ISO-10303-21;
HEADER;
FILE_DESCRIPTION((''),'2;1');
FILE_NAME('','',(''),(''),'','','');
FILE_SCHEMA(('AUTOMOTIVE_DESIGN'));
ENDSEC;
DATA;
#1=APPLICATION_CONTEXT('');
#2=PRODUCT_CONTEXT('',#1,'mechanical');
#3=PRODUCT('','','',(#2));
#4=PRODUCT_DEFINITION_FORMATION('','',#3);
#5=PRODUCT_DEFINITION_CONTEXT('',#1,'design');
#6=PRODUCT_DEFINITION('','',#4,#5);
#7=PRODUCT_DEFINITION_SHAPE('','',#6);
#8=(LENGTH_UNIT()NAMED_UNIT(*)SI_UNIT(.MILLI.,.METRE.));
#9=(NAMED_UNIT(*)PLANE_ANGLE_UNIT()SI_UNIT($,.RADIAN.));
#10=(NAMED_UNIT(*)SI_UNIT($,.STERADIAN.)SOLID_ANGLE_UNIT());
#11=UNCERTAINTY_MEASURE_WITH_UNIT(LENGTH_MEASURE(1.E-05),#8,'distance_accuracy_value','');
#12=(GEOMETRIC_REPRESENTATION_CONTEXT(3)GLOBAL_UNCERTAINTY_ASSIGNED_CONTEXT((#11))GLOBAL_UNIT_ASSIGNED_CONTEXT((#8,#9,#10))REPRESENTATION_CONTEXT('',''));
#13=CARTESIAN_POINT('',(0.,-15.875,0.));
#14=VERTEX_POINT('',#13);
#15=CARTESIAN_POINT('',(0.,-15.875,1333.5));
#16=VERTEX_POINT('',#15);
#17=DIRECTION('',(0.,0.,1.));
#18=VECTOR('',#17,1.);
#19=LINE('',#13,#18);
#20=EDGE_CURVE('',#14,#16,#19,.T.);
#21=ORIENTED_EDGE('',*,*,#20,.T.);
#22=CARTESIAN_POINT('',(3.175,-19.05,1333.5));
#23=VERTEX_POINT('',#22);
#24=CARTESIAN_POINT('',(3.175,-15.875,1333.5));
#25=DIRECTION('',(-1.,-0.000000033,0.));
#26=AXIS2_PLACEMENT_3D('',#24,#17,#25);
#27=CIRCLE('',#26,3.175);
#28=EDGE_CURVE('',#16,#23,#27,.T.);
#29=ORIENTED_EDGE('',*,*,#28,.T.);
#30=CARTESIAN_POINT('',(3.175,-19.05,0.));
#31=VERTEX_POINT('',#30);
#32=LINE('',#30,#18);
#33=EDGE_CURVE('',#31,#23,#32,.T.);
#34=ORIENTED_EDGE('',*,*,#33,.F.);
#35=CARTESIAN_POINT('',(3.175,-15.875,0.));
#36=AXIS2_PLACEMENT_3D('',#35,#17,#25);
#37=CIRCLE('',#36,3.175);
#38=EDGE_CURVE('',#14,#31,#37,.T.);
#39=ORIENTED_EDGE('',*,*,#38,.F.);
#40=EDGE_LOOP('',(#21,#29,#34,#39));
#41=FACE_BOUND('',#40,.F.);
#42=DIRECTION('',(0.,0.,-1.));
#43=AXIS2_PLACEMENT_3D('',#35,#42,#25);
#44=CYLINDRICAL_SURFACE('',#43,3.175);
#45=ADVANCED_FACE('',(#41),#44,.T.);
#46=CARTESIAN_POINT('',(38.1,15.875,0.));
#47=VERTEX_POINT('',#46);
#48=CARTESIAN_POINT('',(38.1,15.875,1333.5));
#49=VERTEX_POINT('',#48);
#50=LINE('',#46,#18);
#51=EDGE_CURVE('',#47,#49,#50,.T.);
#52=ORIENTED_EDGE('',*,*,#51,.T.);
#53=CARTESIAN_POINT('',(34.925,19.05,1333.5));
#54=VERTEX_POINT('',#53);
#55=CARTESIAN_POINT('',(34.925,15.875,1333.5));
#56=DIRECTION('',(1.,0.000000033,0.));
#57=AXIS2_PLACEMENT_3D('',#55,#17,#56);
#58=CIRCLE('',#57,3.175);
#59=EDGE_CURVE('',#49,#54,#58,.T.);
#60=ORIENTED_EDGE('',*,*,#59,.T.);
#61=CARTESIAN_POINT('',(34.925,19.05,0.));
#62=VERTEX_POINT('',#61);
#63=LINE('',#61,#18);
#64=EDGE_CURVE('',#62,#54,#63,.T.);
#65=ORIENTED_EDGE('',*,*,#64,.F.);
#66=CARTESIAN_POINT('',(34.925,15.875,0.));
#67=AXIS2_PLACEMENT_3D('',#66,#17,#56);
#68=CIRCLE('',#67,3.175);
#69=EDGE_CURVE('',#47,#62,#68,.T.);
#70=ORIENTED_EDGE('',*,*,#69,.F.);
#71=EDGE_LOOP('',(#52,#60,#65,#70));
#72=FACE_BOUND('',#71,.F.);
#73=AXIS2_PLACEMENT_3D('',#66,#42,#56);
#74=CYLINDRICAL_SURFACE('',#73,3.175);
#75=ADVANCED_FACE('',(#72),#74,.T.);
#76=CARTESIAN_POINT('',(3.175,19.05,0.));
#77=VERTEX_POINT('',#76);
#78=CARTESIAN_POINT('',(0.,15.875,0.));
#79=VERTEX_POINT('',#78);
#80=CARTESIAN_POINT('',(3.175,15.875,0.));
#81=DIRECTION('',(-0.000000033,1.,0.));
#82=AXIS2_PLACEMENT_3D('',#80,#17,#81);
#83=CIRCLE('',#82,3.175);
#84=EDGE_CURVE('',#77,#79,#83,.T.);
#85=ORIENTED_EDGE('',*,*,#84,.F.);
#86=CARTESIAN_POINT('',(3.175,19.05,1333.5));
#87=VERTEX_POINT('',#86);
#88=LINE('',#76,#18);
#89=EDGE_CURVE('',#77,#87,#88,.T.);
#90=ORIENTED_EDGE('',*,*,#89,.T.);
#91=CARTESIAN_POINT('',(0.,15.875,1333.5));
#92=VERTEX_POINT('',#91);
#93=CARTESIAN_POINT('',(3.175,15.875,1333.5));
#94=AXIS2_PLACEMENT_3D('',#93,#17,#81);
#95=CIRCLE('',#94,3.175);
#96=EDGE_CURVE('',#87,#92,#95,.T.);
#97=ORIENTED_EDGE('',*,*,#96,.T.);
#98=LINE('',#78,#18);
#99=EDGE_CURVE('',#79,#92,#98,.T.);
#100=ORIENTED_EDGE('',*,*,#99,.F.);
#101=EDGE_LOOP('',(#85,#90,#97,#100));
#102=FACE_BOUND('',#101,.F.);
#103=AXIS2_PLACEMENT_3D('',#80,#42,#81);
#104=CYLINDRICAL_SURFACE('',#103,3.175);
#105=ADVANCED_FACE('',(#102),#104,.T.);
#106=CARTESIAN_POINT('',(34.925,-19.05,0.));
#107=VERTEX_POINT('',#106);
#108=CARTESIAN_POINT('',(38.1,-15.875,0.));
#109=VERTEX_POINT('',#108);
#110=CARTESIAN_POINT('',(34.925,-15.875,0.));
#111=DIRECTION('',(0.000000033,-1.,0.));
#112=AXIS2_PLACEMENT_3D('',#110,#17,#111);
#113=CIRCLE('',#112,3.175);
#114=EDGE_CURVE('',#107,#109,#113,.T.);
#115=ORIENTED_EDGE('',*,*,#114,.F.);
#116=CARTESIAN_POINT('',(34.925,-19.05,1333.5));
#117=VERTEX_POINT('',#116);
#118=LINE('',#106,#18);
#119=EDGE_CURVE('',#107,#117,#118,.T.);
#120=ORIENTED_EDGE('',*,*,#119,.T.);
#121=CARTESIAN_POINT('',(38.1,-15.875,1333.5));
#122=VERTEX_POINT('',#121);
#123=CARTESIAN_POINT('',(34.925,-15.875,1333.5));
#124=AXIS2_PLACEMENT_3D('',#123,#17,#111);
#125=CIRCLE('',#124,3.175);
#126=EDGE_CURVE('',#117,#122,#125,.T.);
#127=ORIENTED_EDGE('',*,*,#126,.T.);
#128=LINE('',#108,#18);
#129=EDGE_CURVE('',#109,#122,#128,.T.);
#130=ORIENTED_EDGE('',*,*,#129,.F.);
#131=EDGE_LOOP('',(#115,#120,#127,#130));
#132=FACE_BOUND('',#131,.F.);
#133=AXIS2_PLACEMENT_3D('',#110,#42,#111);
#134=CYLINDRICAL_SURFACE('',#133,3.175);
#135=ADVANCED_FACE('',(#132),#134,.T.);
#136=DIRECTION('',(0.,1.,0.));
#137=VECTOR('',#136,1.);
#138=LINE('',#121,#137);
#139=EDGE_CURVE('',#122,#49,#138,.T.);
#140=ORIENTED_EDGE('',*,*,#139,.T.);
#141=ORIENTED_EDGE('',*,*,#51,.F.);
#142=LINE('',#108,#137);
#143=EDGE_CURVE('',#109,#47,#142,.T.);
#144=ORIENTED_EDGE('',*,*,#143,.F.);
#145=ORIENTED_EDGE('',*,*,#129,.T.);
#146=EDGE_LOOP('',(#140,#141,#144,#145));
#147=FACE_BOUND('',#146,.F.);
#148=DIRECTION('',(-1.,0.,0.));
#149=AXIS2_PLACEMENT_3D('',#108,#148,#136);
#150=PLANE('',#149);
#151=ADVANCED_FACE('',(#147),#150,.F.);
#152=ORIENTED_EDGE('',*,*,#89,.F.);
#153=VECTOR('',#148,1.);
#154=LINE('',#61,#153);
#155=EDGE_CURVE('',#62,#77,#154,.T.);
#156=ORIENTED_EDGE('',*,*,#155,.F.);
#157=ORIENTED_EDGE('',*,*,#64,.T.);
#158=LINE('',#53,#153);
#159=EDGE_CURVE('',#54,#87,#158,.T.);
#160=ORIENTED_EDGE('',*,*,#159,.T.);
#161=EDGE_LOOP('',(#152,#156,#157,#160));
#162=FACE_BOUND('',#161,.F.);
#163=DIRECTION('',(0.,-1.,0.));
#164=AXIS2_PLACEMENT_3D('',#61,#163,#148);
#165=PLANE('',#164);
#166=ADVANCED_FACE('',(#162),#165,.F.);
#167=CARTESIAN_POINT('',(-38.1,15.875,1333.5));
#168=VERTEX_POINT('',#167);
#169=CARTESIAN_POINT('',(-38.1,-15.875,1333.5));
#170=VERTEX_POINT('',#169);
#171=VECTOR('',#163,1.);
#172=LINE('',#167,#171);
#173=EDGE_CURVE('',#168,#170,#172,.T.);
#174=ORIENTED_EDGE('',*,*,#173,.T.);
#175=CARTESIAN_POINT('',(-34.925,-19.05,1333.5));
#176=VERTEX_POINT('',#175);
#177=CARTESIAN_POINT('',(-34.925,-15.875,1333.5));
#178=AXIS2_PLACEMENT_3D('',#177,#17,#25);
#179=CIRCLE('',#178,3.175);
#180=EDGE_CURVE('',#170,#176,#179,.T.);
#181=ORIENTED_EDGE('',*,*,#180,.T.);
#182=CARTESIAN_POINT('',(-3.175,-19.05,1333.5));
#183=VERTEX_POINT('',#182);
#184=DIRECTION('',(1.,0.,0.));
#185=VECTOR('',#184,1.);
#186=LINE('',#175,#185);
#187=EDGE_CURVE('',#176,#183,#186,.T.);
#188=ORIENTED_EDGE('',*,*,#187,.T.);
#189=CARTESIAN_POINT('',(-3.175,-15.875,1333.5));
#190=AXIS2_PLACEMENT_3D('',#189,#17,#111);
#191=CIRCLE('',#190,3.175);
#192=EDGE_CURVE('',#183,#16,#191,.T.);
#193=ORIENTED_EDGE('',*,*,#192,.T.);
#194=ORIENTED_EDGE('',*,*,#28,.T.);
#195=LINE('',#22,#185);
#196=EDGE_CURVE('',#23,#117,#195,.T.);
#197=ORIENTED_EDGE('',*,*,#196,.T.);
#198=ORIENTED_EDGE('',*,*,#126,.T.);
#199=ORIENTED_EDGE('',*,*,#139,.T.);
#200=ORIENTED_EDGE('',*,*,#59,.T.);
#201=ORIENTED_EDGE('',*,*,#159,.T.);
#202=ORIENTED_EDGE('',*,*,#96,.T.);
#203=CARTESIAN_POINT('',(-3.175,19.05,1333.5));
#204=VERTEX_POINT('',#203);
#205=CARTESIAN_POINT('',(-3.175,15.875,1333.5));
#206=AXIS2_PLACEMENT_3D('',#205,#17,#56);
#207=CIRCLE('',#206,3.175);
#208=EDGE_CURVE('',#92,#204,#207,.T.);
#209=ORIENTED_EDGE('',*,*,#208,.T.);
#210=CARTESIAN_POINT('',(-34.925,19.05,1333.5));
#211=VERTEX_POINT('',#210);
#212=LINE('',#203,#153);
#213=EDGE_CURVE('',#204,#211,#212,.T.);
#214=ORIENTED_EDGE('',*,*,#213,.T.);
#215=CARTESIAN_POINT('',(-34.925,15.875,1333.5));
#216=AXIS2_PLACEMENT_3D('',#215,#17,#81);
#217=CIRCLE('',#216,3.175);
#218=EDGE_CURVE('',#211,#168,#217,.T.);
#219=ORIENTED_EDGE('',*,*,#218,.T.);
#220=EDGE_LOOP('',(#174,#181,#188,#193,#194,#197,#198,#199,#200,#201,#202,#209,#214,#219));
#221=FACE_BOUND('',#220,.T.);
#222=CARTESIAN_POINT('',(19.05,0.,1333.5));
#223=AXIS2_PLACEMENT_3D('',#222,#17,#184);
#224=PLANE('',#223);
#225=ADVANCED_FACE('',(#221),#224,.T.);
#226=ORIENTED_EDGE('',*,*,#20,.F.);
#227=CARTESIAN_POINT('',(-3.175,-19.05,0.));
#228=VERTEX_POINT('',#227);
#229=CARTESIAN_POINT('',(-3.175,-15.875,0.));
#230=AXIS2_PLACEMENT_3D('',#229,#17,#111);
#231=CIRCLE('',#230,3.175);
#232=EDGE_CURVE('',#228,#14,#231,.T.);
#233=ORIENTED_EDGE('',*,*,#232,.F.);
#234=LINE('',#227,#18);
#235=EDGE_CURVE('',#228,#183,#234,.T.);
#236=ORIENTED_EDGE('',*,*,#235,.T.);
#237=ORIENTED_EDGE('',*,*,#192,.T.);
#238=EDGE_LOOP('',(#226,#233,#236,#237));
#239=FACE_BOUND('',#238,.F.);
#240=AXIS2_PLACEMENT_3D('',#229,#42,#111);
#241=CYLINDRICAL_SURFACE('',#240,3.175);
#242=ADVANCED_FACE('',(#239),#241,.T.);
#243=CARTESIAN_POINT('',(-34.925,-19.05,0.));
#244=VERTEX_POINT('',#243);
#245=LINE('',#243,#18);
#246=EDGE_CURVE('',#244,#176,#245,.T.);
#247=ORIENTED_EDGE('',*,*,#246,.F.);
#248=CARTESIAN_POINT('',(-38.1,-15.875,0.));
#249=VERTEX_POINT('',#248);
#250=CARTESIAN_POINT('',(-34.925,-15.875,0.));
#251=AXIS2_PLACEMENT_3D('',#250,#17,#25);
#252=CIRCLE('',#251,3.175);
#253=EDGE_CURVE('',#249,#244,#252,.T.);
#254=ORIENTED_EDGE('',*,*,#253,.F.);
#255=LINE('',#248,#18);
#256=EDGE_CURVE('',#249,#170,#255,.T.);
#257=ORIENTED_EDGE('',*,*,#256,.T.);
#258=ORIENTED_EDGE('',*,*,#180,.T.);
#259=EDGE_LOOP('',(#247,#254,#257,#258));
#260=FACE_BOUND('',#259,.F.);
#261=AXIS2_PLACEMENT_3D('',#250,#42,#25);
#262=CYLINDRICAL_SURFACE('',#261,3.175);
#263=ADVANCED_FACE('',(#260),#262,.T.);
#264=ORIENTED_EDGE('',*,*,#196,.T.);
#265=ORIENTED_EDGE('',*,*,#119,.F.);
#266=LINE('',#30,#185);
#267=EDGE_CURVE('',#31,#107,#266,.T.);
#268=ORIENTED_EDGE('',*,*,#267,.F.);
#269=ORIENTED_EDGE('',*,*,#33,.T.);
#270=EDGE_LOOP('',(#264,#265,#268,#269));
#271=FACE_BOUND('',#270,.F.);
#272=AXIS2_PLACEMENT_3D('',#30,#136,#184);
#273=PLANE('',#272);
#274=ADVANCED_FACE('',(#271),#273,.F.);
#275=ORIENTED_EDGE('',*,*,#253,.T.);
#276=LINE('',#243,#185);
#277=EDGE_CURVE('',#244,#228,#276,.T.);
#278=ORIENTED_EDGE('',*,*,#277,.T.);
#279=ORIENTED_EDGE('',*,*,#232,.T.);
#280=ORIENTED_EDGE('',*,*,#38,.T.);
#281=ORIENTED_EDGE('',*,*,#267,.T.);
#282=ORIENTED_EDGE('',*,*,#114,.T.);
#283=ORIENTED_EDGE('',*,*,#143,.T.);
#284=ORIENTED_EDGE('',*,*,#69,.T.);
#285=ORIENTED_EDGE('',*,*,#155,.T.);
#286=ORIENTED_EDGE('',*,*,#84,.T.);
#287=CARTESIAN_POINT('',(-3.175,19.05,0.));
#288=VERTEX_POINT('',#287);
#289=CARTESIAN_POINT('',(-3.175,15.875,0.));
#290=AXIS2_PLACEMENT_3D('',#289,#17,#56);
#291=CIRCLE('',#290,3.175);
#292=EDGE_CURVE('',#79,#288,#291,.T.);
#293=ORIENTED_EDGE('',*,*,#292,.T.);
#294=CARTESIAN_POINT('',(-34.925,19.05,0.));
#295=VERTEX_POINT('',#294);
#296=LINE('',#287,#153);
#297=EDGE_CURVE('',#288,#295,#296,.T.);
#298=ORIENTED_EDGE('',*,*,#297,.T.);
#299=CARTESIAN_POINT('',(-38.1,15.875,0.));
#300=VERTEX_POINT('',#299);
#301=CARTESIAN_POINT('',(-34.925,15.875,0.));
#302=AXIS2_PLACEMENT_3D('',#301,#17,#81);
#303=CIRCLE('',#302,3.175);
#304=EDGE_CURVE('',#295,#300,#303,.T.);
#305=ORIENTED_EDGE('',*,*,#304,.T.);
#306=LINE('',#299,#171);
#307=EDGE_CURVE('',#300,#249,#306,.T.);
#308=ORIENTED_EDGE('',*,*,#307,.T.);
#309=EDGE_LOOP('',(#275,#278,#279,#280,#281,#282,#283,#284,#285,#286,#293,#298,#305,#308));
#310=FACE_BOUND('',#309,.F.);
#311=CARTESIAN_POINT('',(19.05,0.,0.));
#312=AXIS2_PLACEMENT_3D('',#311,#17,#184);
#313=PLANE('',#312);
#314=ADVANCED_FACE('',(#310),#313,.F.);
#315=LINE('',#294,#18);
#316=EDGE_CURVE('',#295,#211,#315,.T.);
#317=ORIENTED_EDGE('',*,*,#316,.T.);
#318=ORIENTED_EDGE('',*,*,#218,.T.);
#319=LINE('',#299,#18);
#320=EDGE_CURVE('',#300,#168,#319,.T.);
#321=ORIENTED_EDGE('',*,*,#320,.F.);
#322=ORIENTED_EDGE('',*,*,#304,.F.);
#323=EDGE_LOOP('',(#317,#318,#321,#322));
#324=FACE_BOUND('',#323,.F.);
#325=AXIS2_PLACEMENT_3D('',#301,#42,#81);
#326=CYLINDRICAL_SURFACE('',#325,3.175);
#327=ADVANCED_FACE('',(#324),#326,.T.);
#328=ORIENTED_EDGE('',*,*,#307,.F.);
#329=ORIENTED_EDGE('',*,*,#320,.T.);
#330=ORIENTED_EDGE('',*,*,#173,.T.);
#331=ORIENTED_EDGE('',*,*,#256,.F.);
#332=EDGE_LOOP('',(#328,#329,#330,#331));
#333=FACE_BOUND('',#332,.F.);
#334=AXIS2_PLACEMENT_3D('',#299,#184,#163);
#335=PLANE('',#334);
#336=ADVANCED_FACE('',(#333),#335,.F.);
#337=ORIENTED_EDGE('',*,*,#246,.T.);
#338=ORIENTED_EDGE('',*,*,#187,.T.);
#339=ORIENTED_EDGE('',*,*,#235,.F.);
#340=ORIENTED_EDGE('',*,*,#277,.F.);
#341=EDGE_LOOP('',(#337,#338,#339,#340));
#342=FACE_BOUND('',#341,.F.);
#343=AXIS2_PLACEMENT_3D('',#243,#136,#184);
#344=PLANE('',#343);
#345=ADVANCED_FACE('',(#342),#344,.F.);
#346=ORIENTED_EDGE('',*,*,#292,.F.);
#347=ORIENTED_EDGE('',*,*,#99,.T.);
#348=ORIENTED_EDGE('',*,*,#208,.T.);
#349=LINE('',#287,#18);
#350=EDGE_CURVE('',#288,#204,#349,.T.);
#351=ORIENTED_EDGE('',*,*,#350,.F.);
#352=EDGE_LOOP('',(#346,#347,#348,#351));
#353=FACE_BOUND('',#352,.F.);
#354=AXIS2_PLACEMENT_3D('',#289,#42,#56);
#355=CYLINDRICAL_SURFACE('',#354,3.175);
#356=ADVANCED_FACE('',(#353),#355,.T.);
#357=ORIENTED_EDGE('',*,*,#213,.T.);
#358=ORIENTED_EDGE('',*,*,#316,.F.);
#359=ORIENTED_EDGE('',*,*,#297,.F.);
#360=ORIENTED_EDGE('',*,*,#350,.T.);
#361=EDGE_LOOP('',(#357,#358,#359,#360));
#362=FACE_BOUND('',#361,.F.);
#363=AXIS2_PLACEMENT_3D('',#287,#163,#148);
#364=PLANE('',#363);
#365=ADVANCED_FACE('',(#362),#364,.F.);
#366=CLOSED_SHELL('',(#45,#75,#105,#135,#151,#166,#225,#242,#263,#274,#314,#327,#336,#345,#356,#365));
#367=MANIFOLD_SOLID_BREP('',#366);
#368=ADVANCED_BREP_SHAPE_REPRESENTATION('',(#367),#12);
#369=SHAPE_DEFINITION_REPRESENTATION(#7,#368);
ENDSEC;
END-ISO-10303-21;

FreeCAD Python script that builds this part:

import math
import FreeCAD as App
import Part
import Sketcher

V = App.Vector
Q = App.Units.Quantity

doc = App.newDocument("Part")
params = doc.addObject("Spreadsheet::Sheet", "Params")
for row, (alias, value) in enumerate([
    ("sketch1_radius", "0.125 in"),
    ("sketch1_width", "1.25 in"),
    ("pad1_length", "52.5 in"),
], start=1):
    params.set(f"A{row}", alias)
    params.set(f"B{row}", "=" + value)
    params.setAlias(f"B{row}", alias)

body = doc.addObject("PartDesign::Body", "Body")

# Sketch on XY plane
sketch1 = body.newObject("Sketcher::SketchObject", "Sketch")
sketch1.AttachmentSupport = (doc.getObject("XY_Plane"), [""])
sketch1.MapMode = "FlatFace"
sketch1.addGeometry(Part.ArcOfCircle(Part.Circle(V(34.9, 15.9, 0), V(0, 0, 1), 3.2), math.radians(0), math.radians(90)), False)
sketch1.addGeometry(Part.LineSegment(V(34.9, 19.1, 0), V(3.2, 19.1, 0)), False)
sketch1.addGeometry(Part.ArcOfCircle(Part.Circle(V(3.2, 15.9, 0), V(0, 0, 1), 3.2), math.radians(90), math.radians(180)), False)
sketch1.addGeometry(Part.ArcOfCircle(Part.Circle(V(-3.2, 15.9, 0), V(0, 0, 1), 3.2), math.radians(0), math.radians(90)), False)
sketch1.addGeometry(Part.LineSegment(V(-3.2, 19.1, 0), V(-34.9, 19.1, 0)), False)
sketch1.addGeometry(Part.ArcOfCircle(Part.Circle(V(-34.9, 15.9, 0), V(0, 0, 1), 3.2), math.radians(90), math.radians(180)), False)
sketch1.addGeometry(Part.LineSegment(V(-38.1, 15.9, 0), V(-38.1, -15.9, 0)), False)
sketch1.addGeometry(Part.ArcOfCircle(Part.Circle(V(-34.9, -15.9, 0), V(0, 0, 1), 3.2), math.radians(-180), math.radians(-90)), False)
sketch1.addGeometry(Part.LineSegment(V(-34.9, -19.1, 0), V(-3.2, -19.1, 0)), False)
sketch1.addGeometry(Part.ArcOfCircle(Part.Circle(V(-3.2, -15.9, 0), V(0, 0, 1), 3.2), math.radians(-90), math.radians(0)), False)
sketch1.addGeometry(Part.ArcOfCircle(Part.Circle(V(3.2, -15.9, 0), V(0, 0, 1), 3.2), math.radians(-180), math.radians(-90)), False)
sketch1.addGeometry(Part.LineSegment(V(3.2, -19.1, 0), V(34.9, -19.1, 0)), False)
sketch1.addGeometry(Part.ArcOfCircle(Part.Circle(V(34.9, -15.9, 0), V(0, 0, 1), 3.2), math.radians(-90), math.radians(0)), False)
sketch1.addGeometry(Part.LineSegment(V(38.1, -15.9, 0), V(38.1, 15.9, 0)), False)
sketch1.addConstraint(Sketcher.Constraint("Tangent", 0, 2, 1, 1))
sketch1.addConstraint(Sketcher.Constraint("Tangent", 1, 2, 2, 1))
sketch1.addConstraint(Sketcher.Constraint("Tangent", 2, 2, 3, 1))
sketch1.addConstraint(Sketcher.Constraint("Tangent", 3, 2, 4, 1))
sketch1.addConstraint(Sketcher.Constraint("Tangent", 4, 2, 5, 1))
sketch1.addConstraint(Sketcher.Constraint("Tangent", 5, 2, 6, 1))
sketch1.addConstraint(Sketcher.Constraint("Tangent", 6, 2, 7, 1))
sketch1.addConstraint(Sketcher.Constraint("Tangent", 7, 2, 8, 1))
sketch1.addConstraint(Sketcher.Constraint("Tangent", 8, 2, 9, 1))
sketch1.addConstraint(Sketcher.Constraint("Tangent", 9, 2, 10, 1))
sketch1.addConstraint(Sketcher.Constraint("Tangent", 10, 2, 11, 1))
sketch1.addConstraint(Sketcher.Constraint("Tangent", 11, 2, 12, 1))
sketch1.addConstraint(Sketcher.Constraint("Tangent", 12, 2, 13, 1))
sketch1.addConstraint(Sketcher.Constraint("Tangent", 13, 2, 0, 1))
sketch1.addConstraint(Sketcher.Constraint("Horizontal", 1))
sketch1.addConstraint(Sketcher.Constraint("Horizontal", 4))
sketch1.addConstraint(Sketcher.Constraint("Vertical", 6))
sketch1.addConstraint(Sketcher.Constraint("Horizontal", 8))
sketch1.addConstraint(Sketcher.Constraint("Horizontal", 11))
sketch1.addConstraint(Sketcher.Constraint("Vertical", 13))
sketch1.addConstraint(Sketcher.Constraint("Equal", 0, 2))
sketch1.addConstraint(Sketcher.Constraint("Equal", 2, 3))
sketch1.addConstraint(Sketcher.Constraint("Equal", 3, 5))
sketch1.addConstraint(Sketcher.Constraint("Equal", 5, 7))
sketch1.addConstraint(Sketcher.Constraint("Equal", 7, 9))
sketch1.addConstraint(Sketcher.Constraint("Equal", 9, 10))
sketch1.addConstraint(Sketcher.Constraint("Equal", 10, 12))
sketch1.addConstraint(Sketcher.Constraint("Symmetric", 0, 3, 7, 3, -1, 1))
sketch1.addConstraint(Sketcher.Constraint("Symmetric", 3, 3, 10, 3, -1, 1))
sketch1.addConstraint(Sketcher.Constraint("Symmetric", 2, 3, 3, 3, -2))
sketch1.addConstraint(Sketcher.Constraint("Equal", 11, 6))
sketch1.addConstraint(Sketcher.Constraint("Radius", 0, Q("0.125 in")))
sketch1.addConstraint(Sketcher.Constraint("DistanceX", 1, 2, 1, 1, Q("1.25 in")))
sketch1.setExpression("Constraints[31]", "Params.sketch1_radius")
sketch1.setExpression("Constraints[32]", "Params.sketch1_width")
pad1 = body.newObject("PartDesign::Pad", "Pad")
pad1.Profile = sketch1
pad1.setExpression("Length", "Params.pad1_length")

doc.recompute()
